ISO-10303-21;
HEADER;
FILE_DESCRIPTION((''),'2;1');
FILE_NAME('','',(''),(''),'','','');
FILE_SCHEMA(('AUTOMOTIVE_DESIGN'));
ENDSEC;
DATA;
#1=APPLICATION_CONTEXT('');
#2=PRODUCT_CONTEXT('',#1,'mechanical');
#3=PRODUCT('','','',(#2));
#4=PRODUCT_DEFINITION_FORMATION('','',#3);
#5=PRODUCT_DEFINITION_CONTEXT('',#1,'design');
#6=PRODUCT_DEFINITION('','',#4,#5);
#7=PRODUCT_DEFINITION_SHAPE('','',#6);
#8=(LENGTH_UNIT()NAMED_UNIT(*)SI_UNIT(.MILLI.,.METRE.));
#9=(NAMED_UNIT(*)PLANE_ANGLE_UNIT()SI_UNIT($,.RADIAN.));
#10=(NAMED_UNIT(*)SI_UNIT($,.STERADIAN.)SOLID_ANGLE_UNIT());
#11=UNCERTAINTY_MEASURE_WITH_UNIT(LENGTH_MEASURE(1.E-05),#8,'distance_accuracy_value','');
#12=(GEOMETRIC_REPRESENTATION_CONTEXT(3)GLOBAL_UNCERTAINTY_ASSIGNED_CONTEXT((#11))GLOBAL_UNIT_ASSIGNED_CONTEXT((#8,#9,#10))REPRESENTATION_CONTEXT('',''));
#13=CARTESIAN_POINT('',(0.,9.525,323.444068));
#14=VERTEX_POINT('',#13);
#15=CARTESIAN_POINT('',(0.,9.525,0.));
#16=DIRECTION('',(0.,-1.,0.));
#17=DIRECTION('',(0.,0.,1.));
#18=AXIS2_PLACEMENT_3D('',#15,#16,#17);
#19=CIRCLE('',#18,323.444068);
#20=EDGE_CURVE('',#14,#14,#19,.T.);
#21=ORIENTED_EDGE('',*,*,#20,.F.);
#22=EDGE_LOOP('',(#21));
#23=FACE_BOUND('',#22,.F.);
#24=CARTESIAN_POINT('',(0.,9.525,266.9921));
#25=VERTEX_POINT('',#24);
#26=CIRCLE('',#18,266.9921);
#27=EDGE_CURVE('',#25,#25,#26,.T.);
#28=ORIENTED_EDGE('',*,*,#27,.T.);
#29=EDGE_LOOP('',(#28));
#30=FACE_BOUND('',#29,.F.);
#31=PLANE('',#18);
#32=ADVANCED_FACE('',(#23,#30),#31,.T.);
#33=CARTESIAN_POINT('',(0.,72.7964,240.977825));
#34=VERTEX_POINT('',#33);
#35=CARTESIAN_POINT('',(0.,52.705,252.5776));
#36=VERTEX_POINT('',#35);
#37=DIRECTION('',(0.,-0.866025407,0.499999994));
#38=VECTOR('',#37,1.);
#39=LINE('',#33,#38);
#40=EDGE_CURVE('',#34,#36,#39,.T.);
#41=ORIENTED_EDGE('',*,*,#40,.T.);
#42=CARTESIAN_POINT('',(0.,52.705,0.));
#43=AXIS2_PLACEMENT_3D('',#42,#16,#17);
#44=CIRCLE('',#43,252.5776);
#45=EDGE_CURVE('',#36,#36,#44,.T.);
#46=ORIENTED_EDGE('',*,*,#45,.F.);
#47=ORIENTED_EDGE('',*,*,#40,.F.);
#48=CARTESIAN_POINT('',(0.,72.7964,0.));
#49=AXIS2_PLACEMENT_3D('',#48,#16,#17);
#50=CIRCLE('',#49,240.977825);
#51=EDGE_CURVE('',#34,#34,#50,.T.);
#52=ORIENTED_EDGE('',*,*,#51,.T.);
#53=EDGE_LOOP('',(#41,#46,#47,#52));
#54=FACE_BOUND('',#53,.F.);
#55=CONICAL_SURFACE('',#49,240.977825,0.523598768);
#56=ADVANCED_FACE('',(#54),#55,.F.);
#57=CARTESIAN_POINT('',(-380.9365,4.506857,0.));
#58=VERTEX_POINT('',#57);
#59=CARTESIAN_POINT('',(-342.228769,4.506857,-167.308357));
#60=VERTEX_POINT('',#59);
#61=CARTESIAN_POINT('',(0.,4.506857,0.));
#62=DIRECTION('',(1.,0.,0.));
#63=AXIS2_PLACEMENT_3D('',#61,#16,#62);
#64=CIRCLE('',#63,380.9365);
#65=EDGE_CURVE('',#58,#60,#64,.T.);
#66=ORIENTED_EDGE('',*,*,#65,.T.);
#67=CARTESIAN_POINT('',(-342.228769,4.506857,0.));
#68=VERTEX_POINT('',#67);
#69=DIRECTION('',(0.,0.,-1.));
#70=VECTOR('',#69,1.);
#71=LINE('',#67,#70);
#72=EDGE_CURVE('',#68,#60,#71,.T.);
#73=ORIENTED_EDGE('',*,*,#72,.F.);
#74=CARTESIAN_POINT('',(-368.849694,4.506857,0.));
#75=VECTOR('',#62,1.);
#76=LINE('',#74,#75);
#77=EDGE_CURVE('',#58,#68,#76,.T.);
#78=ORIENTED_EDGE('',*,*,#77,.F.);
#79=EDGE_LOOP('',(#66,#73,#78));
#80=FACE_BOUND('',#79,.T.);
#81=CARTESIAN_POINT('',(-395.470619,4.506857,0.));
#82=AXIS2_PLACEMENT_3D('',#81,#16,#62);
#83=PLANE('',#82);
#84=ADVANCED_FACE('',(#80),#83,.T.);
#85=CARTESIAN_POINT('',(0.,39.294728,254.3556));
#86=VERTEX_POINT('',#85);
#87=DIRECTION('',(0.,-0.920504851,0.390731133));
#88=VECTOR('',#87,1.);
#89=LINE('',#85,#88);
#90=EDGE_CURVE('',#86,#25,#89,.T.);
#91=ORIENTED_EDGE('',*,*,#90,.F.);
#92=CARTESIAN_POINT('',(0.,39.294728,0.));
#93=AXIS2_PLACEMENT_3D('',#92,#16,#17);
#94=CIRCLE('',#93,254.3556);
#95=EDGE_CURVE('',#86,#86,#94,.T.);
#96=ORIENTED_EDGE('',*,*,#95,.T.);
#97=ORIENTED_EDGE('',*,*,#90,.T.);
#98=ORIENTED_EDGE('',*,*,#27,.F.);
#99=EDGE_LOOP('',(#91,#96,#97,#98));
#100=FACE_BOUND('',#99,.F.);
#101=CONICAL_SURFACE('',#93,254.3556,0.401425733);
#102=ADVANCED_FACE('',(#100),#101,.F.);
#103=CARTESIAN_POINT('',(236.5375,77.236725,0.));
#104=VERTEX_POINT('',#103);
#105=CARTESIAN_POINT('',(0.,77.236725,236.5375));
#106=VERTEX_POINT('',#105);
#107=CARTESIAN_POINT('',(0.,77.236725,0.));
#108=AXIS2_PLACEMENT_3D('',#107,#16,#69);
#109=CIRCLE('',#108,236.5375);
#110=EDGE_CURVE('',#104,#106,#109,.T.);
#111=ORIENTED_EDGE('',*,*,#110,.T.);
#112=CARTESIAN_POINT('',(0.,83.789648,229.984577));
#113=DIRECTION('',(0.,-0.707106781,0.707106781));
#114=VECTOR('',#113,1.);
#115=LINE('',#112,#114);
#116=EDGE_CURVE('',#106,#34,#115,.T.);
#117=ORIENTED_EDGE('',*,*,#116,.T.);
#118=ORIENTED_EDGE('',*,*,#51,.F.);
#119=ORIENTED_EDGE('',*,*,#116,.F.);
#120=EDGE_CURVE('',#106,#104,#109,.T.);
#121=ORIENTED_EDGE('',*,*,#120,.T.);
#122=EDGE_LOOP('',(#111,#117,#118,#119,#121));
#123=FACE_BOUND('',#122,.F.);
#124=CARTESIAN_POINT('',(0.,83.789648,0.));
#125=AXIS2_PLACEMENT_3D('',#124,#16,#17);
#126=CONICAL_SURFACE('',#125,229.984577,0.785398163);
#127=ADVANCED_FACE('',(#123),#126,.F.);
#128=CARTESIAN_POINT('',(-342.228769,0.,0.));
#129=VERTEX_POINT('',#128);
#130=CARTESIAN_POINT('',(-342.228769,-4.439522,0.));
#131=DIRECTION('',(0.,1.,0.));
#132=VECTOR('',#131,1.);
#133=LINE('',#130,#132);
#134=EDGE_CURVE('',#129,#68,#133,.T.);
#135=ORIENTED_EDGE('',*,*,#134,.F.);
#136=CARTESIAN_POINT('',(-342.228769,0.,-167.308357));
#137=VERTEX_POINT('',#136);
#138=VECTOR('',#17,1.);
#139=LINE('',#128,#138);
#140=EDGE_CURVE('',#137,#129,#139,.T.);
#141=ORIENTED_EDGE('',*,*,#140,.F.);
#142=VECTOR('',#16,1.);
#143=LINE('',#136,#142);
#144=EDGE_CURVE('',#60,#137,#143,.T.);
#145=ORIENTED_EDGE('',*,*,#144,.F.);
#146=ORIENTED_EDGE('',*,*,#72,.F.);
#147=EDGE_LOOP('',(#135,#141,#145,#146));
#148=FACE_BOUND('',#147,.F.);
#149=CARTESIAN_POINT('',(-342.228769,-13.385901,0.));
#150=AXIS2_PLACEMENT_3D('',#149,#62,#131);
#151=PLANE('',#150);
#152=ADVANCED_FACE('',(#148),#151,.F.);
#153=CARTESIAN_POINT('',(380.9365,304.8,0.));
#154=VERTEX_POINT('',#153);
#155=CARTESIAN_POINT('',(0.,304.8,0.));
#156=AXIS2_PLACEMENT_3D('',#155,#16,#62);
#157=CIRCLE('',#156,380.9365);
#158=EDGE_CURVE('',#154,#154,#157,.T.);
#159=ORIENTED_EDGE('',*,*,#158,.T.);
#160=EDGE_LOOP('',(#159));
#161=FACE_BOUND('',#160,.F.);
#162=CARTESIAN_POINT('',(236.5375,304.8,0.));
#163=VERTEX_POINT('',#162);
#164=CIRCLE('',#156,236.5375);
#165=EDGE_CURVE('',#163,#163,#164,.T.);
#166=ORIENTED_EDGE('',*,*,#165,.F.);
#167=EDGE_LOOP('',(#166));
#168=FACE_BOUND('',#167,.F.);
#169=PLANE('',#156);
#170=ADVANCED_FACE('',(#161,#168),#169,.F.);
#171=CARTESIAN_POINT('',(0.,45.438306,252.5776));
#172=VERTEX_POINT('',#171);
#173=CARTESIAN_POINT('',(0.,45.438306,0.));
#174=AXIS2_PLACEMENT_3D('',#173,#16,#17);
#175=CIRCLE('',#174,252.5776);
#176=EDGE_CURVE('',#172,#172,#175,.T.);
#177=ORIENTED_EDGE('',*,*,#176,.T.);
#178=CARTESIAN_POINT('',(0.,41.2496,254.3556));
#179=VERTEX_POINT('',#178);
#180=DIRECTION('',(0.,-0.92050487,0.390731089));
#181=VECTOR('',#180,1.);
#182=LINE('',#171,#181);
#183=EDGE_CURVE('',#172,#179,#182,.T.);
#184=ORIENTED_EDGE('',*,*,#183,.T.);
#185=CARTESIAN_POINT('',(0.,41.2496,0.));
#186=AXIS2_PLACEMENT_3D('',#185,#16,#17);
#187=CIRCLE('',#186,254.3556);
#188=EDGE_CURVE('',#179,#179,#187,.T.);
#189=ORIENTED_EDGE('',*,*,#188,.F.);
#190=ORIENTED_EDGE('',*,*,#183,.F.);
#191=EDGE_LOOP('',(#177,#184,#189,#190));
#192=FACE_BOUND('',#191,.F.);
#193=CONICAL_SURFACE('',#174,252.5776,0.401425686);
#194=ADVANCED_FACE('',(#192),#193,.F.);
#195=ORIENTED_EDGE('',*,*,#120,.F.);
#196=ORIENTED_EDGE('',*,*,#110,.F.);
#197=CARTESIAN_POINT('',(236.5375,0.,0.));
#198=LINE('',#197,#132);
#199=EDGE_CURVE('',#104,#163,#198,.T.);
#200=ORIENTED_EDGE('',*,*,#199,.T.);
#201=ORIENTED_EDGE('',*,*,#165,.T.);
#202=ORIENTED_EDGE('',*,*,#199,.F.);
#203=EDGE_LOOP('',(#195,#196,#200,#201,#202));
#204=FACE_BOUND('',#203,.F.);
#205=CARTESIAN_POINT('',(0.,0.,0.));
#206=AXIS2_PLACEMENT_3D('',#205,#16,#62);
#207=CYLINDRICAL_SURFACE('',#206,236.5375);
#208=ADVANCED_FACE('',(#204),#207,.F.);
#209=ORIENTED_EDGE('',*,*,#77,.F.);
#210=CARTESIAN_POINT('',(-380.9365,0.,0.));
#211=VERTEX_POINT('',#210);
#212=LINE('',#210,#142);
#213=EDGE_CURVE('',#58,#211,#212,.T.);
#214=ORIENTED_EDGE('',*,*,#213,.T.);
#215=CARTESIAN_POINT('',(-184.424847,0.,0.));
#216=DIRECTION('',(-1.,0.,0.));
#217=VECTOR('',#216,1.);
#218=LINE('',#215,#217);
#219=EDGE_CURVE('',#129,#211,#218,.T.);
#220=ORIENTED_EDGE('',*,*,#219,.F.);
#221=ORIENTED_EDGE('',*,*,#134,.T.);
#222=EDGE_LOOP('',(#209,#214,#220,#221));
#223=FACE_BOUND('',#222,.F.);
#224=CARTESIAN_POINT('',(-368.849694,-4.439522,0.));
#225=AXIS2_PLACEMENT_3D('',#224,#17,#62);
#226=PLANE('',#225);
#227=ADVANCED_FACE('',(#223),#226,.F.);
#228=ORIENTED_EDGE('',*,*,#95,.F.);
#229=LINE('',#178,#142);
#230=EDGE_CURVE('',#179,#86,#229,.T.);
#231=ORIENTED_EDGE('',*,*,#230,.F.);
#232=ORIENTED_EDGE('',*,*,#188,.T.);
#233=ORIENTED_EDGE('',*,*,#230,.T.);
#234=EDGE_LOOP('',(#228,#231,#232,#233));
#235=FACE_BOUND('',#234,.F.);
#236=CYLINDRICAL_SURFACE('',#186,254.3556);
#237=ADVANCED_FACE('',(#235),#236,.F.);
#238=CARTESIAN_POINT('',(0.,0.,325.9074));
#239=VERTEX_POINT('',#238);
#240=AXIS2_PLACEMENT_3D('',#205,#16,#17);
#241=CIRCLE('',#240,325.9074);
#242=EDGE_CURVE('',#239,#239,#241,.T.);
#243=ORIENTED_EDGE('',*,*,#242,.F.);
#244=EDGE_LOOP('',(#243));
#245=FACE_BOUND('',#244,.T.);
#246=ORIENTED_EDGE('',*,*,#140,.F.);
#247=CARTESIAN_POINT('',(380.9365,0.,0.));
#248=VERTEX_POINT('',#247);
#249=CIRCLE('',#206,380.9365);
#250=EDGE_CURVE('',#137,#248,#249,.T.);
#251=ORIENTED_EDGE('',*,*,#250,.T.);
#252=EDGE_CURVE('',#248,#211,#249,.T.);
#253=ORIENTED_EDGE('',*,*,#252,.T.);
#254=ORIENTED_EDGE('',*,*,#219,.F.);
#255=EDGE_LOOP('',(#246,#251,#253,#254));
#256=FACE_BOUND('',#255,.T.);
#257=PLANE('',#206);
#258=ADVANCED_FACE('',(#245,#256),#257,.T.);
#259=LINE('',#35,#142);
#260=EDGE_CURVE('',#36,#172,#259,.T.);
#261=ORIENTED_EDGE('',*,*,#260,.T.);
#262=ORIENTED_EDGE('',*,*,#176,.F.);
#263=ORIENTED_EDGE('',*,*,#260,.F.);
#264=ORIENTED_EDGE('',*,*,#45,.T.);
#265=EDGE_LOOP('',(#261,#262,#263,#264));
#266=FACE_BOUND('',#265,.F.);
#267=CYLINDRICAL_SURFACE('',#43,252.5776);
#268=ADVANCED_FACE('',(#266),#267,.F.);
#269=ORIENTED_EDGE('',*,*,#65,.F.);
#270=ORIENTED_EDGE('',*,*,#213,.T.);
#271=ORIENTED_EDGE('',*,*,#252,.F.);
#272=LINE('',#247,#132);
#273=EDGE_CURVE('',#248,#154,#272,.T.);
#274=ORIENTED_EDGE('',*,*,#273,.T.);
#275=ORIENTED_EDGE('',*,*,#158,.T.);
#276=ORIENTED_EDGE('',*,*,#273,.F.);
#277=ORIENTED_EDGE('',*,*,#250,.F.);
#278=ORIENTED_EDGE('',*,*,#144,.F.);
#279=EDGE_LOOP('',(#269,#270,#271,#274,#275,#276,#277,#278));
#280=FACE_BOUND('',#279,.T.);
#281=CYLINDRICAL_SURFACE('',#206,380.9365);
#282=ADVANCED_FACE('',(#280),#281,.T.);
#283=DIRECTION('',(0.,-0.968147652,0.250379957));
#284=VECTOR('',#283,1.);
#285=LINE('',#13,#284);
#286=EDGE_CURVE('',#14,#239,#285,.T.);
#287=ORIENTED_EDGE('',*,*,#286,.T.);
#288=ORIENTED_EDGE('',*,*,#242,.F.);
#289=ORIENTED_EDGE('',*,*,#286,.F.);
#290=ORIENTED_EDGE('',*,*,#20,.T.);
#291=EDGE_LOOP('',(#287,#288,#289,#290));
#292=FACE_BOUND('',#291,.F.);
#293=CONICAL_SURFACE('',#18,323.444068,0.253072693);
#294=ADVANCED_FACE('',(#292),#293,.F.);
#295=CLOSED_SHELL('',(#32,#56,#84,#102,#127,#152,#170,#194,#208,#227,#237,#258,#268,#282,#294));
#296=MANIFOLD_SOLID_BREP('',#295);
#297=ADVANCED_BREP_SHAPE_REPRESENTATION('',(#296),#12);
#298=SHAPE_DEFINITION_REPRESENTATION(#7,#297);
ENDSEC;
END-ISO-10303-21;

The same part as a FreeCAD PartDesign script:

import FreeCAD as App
import Part
import Sketcher

V = App.Vector
Q = App.Units.Quantity

doc = App.newDocument("Part")
body = doc.addObject("PartDesign::Body", "Body")

# Sketch on XZ plane
sketch1 = doc.addObject("Sketcher::SketchObject", "Sketch")
body.addObject(sketch1)
sketch1.AttachmentSupport = (doc.XZ_Plane, [""])
sketch1.MapMode = "FlatFace"
sketch1.addGeometry([
    Part.Circle(V(0, 0, 0), V(0, 0, 1), 381),
    Part.Circle(V(0, 0, 0), V(0, 0, 1), 237),
], False)
sketch1.addConstraint([
    Sketcher.Constraint("Coincident", 0, 3, -1, 1),
    Sketcher.Constraint("Coincident", 1, 3, -1, 1),
    Sketcher.Constraint("Diameter", 0, Q("29.995 in")),
    Sketcher.Constraint("Diameter", 1, Q("18.625 in")),
])
pad1 = doc.addObject("PartDesign::Pad", "Pad")
body.addObject(pad1)
pad1.Profile = sketch1
pad1.Length = Q("12 in")
pad1.Reversed = True

# Sketch on YZ plane
sketch2 = doc.addObject("Sketcher::SketchObject", "Sketch001")
body.addObject(sketch2)
sketch2.AttachmentSupport = (doc.YZ_Plane, [""])
sketch2.MapMode = "FlatFace"
sketch2.addGeometry([
    Part.LineSegment(V(-1, 0, 0), V(10, 0, 0)),  # 0
    Part.LineSegment(V(10, 0, 0), V(10, 323, 0)),  # 1
    Part.LineSegment(V(10, 323, 0), V(0, 326, 0)),  # 2
    Part.LineSegment(V(0, 326, 0), V(-38, 326, 0)),  # 3
    Part.LineSegment(V(-38, 326, 0), V(-1, 0, 0)),  # 4
], False)
sketch2.addConstraint([
    Sketcher.Constraint("Coincident", 0, 2, 1, 1),
    Sketcher.Constraint("Coincident", 1, 2, 2, 1),
    Sketcher.Constraint("Coincident", 2, 2, 3, 1),
    Sketcher.Constraint("Coincident", 3, 2, 4, 1),
    Sketcher.Constraint("Coincident", 4, 2, 0, 1),
    Sketcher.Constraint("Horizontal", 0),
    Sketcher.Constraint("Vertical", 1),
    Sketcher.Constraint("Horizontal", 3),
    Sketcher.Constraint("PointOnObject", 0, 2, -1),
    Sketcher.Constraint("PointOnObject", 2, 2, -2),
    Sketcher.Constraint("Angle", 2, Q("165.500003 deg")),
    Sketcher.Constraint("DistanceX", -1, 1, 0, 2, Q("0.375 in")),
    Sketcher.Constraint("DistanceY", -1, 1, 2, 2, Q("12.831 in")),
    Sketcher.Constraint("DistanceX", 3, 2, 3, 1, Q("38.13795 mm")),
    Sketcher.Constraint("Distance", 4, Q("328.05355 mm")),
])
groove = doc.addObject("PartDesign::Groove", "Groove")
body.addObject(groove)
groove.Profile = sketch2
groove.ReferenceAxis = (sketch2, ["H_Axis"])
groove.Angle = 360

# Sketch on YZ plane
sketch3 = doc.addObject("Sketcher::SketchObject", "Sketch002")
body.addObject(sketch3)
sketch3.AttachmentSupport = (doc.YZ_Plane, [""])
sketch3.MapMode = "FlatFace"
sketch3.addGeometry([
    Part.LineSegment(V(39.3, 254.4, 0), V(9.5, 267, 0)),  # 0
    Part.LineSegment(V(9.5, 267, 0), V(-84, 267, 0)),  # 1
    Part.LineSegment(V(-84, 267, 0), V(-48.1, 188, 0)),  # 2
    Part.LineSegment(V(-48.1, 188, 0), V(83.8, 230, 0)),  # 3
    Part.LineSegment(V(83.8, 230, 0), V(72.8, 241, 0)),  # 4
    Part.LineSegment(V(72.8, 241, 0), V(52.7, 252.6, 0)),  # 5
    Part.LineSegment(V(52.7, 252.6, 0), V(45.4, 252.6, 0)),  # 6
    Part.LineSegment(V(45.4, 252.6, 0), V(41.2, 254.4, 0)),  # 7
    Part.LineSegment(V(41.2, 254.4, 0), V(39.3, 254.4, 0)),  # 8
], False)
sketch3.addConstraint([
    Sketcher.Constraint("Coincident", 0, 2, 1, 1),
    Sketcher.Constraint("Coincident", 1, 2, 2, 1),
    Sketcher.Constraint("Coincident", 2, 2, 3, 1),
    Sketcher.Constraint("Coincident", 3, 2, 4, 1),
    Sketcher.Constraint("Coincident", 4, 2, 5, 1),
    Sketcher.Constraint("Coincident", 5, 2, 6, 1),
    Sketcher.Constraint("Coincident", 6, 2, 7, 1),
    Sketcher.Constraint("Coincident", 7, 2, 8, 1),
    Sketcher.Constraint("Coincident", 8, 2, 0, 1),
    Sketcher.Constraint("Horizontal", 1),
    Sketcher.Constraint("Horizontal", 6),
    Sketcher.Constraint("Horizontal", 8),
    Sketcher.Constraint("Parallel", 0, 7),
    Sketcher.Constraint("Angle", 0, Q("157 deg")),
    Sketcher.Constraint("Angle", 4, Q("135 deg")),
    Sketcher.Constraint("Angle", 5, Q("150 deg")),
    Sketcher.Constraint("DistanceX", 0, 2, 5, 2, Q("1.7 in")),
    Sketcher.Constraint("DistanceY", 6, 2, 7, 2, Q("0.07 in")),
    Sketcher.Constraint("DistanceX", -1, 1, 0, 2, Q("0.375 in")),
    Sketcher.Constraint("DistanceX", -1, 1, 4, 2, Q("2.866 in")),
    Sketcher.Constraint("DistanceY", -1, 1, 5, 2, Q("9.944 in")),
    Sketcher.Constraint("DistanceX", -1, 1, 7, 2, Q("1.624 in")),
    Sketcher.Constraint("DistanceY", -1, 1, 0, 2, Q("10.5115 in")),
    Sketcher.Constraint("Distance", 4, Q("15.5468 mm")),
    Sketcher.Constraint("Distance", 3, Q("138.38957 mm")),
    Sketcher.Constraint("DistanceX", 1, 2, 1, 1, Q("93.479796 mm")),
    Sketcher.Constraint("DistanceX", 2, 2, -1, 1, Q("48.076838 mm")),
])
groove2 = doc.addObject("PartDesign::Groove", "Groove001")
body.addObject(groove2)
groove2.Profile = sketch3
groove2.ReferenceAxis = (sketch3, ["H_Axis"])
groove2.Angle = 360

# Sketch on XY plane
sketch4 = doc.addObject("Sketcher::SketchObject", "Sketch003")
body.addObject(sketch4)
sketch4.AttachmentSupport = (doc.XY_Plane, [""])
sketch4.MapMode = "FlatFace"
sketch4.addGeometry([
    Part.LineSegment(V(-395, 5, 0), V(-395, -13, 0)),
    Part.LineSegment(V(-395, -13, 0), V(-342, -13, 0)),
    Part.LineSegment(V(-342, -13, 0), V(-342, 5, 0)),
    Part.LineSegment(V(-342, 5, 0), V(-395, 5, 0)),
], False)
sketch4.addConstraint([
    Sketcher.Constraint("Coincident", 0, 2, 1, 1),
    Sketcher.Constraint("Coincident", 1, 2, 2, 1),
    Sketcher.Constraint("Coincident", 2, 2, 3, 1),
    Sketcher.Constraint("Coincident", 3, 2, 0, 1),
    Sketcher.Constraint("Vertical", 0),
    Sketcher.Constraint("Horizontal", 1),
    Sketcher.Constraint("Vertical", 2),
    Sketcher.Constraint("Horizontal", 3),
    Sketcher.Constraint("DistanceX", 1, 1, 1, 2, Q("53.241849 mm")),
    Sketcher.Constraint("DistanceY", 0, 2, 0, 1, Q("17.892758 mm")),
    Sketcher.Constraint("DistanceY", 0, 2, -1, 1, Q("13.385901 mm")),
    Sketcher.Constraint("DistanceX", 0, 2, -1, 1, Q("395.470619 mm")),
])
pocket1 = doc.addObject("PartDesign::Pocket", "Pocket")
body.addObject(pocket1)
pocket1.Profile = sketch4
pocket1.Length = Q("9.1 in")

doc.recompute()
